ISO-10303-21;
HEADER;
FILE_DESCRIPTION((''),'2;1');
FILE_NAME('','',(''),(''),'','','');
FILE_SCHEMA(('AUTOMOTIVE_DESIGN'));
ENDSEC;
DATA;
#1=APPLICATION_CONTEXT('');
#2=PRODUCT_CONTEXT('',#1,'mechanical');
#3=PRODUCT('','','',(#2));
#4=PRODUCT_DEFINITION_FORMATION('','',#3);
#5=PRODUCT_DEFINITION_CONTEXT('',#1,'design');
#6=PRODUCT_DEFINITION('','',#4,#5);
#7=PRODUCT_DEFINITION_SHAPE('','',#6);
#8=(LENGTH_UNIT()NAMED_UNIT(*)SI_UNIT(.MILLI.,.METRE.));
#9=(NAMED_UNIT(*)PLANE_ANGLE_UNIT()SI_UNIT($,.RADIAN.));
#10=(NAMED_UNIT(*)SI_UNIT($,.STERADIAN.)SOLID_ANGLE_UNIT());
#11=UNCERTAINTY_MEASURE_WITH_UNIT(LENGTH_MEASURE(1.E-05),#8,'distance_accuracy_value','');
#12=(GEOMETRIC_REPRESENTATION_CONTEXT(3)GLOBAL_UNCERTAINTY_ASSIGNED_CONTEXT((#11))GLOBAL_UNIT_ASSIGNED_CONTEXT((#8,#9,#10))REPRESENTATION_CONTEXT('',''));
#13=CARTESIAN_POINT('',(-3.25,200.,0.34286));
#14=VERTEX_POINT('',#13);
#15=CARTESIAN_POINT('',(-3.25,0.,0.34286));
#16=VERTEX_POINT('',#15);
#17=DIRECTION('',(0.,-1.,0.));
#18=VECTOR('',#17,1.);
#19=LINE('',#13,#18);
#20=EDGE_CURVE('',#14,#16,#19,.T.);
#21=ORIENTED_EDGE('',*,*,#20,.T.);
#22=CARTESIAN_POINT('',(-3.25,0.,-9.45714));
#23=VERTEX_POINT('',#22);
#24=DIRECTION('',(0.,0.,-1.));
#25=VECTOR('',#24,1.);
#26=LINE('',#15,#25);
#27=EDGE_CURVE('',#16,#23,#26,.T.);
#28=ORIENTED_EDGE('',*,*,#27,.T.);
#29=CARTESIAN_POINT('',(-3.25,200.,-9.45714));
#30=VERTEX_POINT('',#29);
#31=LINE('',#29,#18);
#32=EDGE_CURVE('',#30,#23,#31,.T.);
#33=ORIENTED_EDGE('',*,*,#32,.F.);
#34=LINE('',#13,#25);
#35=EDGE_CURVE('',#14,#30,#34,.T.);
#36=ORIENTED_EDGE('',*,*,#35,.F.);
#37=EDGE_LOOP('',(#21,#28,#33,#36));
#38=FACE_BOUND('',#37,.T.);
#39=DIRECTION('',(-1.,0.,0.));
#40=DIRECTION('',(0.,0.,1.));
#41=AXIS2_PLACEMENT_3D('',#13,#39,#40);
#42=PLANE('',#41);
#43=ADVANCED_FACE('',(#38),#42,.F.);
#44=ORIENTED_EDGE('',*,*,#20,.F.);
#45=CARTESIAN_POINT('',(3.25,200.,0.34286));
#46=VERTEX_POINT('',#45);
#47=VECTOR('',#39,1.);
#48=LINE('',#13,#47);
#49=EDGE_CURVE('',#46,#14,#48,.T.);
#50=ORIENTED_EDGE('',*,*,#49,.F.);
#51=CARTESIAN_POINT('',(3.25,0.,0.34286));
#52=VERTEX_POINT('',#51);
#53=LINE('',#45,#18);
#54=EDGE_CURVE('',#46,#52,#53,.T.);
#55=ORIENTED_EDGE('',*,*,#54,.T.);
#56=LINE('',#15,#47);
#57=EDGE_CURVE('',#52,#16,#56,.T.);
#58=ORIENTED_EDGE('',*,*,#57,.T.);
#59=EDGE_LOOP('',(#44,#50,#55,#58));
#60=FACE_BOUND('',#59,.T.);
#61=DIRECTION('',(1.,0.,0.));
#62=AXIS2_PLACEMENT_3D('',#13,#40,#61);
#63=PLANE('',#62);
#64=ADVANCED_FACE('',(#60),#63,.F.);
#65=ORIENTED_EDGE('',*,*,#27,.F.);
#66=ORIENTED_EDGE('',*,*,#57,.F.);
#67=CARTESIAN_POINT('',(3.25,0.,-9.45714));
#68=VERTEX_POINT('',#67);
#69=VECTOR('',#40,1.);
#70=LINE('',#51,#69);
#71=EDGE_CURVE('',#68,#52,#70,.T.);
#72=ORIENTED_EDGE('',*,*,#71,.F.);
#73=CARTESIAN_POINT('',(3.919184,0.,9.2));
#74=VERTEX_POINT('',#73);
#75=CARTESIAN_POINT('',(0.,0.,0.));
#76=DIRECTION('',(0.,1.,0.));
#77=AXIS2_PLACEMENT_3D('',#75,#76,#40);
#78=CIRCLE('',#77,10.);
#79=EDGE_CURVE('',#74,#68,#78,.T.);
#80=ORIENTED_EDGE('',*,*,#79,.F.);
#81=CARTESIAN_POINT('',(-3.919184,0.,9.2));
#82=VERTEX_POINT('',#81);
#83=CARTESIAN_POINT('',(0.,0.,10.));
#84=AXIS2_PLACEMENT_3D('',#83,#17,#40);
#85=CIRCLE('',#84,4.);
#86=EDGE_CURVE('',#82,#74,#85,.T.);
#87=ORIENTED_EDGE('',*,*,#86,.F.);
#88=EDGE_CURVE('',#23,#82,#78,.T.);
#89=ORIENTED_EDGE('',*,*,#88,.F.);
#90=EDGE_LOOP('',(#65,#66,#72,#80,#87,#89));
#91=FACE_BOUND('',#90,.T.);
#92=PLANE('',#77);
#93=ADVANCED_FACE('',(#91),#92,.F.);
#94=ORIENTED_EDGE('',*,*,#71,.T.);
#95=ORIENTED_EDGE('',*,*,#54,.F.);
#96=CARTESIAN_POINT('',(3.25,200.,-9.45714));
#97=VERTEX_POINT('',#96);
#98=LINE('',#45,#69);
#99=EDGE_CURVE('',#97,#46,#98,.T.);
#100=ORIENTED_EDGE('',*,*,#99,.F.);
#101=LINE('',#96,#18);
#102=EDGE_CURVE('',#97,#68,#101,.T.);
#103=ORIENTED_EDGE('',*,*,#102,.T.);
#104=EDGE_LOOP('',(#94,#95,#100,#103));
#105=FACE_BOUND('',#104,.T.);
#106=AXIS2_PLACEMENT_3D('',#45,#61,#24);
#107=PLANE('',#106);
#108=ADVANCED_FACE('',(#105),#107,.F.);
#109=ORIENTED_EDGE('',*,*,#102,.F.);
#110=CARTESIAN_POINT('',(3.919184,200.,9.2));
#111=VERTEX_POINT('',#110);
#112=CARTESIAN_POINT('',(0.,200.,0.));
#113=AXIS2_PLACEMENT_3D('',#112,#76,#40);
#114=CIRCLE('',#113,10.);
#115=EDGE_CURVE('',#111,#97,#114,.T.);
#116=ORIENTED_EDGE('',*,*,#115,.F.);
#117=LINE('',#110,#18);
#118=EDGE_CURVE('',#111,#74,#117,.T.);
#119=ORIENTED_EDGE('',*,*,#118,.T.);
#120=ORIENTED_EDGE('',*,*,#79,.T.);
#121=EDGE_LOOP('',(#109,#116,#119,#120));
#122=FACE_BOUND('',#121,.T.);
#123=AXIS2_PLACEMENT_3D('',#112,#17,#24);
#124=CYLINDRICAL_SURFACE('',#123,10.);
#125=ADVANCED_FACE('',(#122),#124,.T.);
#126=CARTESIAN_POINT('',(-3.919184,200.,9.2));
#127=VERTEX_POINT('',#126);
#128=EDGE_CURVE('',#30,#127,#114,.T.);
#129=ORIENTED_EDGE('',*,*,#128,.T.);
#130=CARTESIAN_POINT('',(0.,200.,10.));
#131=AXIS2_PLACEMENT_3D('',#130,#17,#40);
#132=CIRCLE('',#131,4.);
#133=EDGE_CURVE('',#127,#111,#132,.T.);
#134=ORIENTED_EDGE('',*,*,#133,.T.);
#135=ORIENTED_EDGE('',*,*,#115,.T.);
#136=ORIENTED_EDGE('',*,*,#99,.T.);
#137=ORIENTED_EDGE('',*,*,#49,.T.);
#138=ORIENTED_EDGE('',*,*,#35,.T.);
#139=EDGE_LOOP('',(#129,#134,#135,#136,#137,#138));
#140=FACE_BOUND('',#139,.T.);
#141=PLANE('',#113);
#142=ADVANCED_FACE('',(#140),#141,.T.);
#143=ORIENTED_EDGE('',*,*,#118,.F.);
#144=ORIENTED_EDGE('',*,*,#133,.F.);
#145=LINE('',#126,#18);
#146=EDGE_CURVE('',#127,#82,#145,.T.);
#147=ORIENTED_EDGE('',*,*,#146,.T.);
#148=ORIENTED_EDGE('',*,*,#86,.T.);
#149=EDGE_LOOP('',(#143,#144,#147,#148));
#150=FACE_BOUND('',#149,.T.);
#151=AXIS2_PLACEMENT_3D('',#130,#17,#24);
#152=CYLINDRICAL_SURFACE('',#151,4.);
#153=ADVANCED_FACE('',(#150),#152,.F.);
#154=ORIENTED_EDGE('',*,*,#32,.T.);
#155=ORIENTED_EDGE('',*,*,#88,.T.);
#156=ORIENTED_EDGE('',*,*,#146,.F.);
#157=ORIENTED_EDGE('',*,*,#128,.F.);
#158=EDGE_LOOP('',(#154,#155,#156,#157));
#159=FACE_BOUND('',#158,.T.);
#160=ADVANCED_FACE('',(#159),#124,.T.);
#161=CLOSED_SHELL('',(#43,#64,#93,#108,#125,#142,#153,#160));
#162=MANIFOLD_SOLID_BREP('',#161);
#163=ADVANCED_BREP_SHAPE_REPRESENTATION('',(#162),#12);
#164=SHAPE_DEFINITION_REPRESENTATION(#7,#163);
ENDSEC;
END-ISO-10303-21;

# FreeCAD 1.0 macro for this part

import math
import FreeCAD as App
import Part
import Sketcher
from FreeCAD import Vector
Q = App.Units.Quantity

doc = App.newDocument("Part")
params = doc.addObject("Spreadsheet::Sheet", "Params")
for row, (alias, value) in enumerate([
    ("sketch1_radius", "10 mm"),
    ("sketch1_radius2", "4 mm"),
    ("sketch1_width", "6.5 mm"),
    ("sketch1_height", "9.8 mm"),
    ("pad1_length", "200 mm"),
], start=1):
    params.set(f"A{row}", alias)
    params.set(f"B{row}", "=" + value)
    params.setAlias(f"B{row}", alias)

body = doc.addObject("PartDesign::Body", "Body")

sketch1 = body.newObject("Sketcher::SketchObject", "Sketch")
sketch1.AttachmentSupport = (doc.getObject("XZ_Plane"), [""])
sketch1.MapMode = "FlatFace"
sketch1.addGeometry([
    Part.LineSegment(Vector(3.2, 0.3, 0), Vector(-3.2, 0.3, 0)),
    Part.LineSegment(Vector(-3.2, 0.3, 0), Vector(-3.2, -9.5, 0)),
    Part.ArcOfCircle(Part.Circle(Vector(0, 0, 0), Vector(0, 0, 1), 10), math.radians(113), math.radians(251)),
    Part.ArcOfCircle(Part.Circle(Vector(0, 10, 0), Vector(0, 0, 1), 4), math.radians(-168), math.radians(-12)),
    Part.ArcOfCircle(Part.Circle(Vector(0, 0, 0), Vector(0, 0, 1), 10), math.radians(-71), math.radians(67)),
    Part.LineSegment(Vector(3.2, -9.5, 0), Vector(3.2, 0.3, 0)),
], False)
sketch1.addConstraint([
    Sketcher.Constraint("Coincident", 0, 2, 1, 1),
    Sketcher.Constraint("Coincident", 1, 2, 2, 2),
    Sketcher.Constraint("Coincident", 2, 1, 3, 1),
    Sketcher.Constraint("Coincident", 3, 2, 4, 2),
    Sketcher.Constraint("Coincident", 4, 1, 5, 1),
    Sketcher.Constraint("Coincident", 5, 2, 0, 1),
    Sketcher.Constraint("Horizontal", 0),
    Sketcher.Constraint("Vertical", 1),
    Sketcher.Constraint("Vertical", 5),
    Sketcher.Constraint("Coincident", 2, 3, -1, 1),
    Sketcher.Constraint("Coincident", 4, 3, -1, 1),
    Sketcher.Constraint("Equal", 2, 4),
    Sketcher.Constraint("PointOnObject", 3, 3, -2),
    Sketcher.Constraint("Horizontal", 1, 2, 4, 1),
    Sketcher.Constraint("Radius", 2, Q("10 mm")),
    Sketcher.Constraint("Radius", 3, Q("4 mm")),
    Sketcher.Constraint("DistanceX", 0, 2, 0, 1, Q("6.5 mm")),
    Sketcher.Constraint("DistanceY", 1, 2, 1, 1, Q("9.8 mm")),
    Sketcher.Constraint("DistanceY", -1, 1, 3, 3, Q("10 mm")),
])
sketch1.setExpression("Constraints[14]", "Params.sketch1_radius")
sketch1.setExpression("Constraints[15]", "Params.sketch1_radius2")
sketch1.setExpression("Constraints[16]", "Params.sketch1_width")
sketch1.setExpression("Constraints[17]", "Params.sketch1_height")
pad1 = body.newObject("PartDesign::Pad", "Pad")
pad1.Profile = sketch1
pad1.setExpression("Length", "Params.pad1_length")
pad1.Reversed = True

doc.recompute()
